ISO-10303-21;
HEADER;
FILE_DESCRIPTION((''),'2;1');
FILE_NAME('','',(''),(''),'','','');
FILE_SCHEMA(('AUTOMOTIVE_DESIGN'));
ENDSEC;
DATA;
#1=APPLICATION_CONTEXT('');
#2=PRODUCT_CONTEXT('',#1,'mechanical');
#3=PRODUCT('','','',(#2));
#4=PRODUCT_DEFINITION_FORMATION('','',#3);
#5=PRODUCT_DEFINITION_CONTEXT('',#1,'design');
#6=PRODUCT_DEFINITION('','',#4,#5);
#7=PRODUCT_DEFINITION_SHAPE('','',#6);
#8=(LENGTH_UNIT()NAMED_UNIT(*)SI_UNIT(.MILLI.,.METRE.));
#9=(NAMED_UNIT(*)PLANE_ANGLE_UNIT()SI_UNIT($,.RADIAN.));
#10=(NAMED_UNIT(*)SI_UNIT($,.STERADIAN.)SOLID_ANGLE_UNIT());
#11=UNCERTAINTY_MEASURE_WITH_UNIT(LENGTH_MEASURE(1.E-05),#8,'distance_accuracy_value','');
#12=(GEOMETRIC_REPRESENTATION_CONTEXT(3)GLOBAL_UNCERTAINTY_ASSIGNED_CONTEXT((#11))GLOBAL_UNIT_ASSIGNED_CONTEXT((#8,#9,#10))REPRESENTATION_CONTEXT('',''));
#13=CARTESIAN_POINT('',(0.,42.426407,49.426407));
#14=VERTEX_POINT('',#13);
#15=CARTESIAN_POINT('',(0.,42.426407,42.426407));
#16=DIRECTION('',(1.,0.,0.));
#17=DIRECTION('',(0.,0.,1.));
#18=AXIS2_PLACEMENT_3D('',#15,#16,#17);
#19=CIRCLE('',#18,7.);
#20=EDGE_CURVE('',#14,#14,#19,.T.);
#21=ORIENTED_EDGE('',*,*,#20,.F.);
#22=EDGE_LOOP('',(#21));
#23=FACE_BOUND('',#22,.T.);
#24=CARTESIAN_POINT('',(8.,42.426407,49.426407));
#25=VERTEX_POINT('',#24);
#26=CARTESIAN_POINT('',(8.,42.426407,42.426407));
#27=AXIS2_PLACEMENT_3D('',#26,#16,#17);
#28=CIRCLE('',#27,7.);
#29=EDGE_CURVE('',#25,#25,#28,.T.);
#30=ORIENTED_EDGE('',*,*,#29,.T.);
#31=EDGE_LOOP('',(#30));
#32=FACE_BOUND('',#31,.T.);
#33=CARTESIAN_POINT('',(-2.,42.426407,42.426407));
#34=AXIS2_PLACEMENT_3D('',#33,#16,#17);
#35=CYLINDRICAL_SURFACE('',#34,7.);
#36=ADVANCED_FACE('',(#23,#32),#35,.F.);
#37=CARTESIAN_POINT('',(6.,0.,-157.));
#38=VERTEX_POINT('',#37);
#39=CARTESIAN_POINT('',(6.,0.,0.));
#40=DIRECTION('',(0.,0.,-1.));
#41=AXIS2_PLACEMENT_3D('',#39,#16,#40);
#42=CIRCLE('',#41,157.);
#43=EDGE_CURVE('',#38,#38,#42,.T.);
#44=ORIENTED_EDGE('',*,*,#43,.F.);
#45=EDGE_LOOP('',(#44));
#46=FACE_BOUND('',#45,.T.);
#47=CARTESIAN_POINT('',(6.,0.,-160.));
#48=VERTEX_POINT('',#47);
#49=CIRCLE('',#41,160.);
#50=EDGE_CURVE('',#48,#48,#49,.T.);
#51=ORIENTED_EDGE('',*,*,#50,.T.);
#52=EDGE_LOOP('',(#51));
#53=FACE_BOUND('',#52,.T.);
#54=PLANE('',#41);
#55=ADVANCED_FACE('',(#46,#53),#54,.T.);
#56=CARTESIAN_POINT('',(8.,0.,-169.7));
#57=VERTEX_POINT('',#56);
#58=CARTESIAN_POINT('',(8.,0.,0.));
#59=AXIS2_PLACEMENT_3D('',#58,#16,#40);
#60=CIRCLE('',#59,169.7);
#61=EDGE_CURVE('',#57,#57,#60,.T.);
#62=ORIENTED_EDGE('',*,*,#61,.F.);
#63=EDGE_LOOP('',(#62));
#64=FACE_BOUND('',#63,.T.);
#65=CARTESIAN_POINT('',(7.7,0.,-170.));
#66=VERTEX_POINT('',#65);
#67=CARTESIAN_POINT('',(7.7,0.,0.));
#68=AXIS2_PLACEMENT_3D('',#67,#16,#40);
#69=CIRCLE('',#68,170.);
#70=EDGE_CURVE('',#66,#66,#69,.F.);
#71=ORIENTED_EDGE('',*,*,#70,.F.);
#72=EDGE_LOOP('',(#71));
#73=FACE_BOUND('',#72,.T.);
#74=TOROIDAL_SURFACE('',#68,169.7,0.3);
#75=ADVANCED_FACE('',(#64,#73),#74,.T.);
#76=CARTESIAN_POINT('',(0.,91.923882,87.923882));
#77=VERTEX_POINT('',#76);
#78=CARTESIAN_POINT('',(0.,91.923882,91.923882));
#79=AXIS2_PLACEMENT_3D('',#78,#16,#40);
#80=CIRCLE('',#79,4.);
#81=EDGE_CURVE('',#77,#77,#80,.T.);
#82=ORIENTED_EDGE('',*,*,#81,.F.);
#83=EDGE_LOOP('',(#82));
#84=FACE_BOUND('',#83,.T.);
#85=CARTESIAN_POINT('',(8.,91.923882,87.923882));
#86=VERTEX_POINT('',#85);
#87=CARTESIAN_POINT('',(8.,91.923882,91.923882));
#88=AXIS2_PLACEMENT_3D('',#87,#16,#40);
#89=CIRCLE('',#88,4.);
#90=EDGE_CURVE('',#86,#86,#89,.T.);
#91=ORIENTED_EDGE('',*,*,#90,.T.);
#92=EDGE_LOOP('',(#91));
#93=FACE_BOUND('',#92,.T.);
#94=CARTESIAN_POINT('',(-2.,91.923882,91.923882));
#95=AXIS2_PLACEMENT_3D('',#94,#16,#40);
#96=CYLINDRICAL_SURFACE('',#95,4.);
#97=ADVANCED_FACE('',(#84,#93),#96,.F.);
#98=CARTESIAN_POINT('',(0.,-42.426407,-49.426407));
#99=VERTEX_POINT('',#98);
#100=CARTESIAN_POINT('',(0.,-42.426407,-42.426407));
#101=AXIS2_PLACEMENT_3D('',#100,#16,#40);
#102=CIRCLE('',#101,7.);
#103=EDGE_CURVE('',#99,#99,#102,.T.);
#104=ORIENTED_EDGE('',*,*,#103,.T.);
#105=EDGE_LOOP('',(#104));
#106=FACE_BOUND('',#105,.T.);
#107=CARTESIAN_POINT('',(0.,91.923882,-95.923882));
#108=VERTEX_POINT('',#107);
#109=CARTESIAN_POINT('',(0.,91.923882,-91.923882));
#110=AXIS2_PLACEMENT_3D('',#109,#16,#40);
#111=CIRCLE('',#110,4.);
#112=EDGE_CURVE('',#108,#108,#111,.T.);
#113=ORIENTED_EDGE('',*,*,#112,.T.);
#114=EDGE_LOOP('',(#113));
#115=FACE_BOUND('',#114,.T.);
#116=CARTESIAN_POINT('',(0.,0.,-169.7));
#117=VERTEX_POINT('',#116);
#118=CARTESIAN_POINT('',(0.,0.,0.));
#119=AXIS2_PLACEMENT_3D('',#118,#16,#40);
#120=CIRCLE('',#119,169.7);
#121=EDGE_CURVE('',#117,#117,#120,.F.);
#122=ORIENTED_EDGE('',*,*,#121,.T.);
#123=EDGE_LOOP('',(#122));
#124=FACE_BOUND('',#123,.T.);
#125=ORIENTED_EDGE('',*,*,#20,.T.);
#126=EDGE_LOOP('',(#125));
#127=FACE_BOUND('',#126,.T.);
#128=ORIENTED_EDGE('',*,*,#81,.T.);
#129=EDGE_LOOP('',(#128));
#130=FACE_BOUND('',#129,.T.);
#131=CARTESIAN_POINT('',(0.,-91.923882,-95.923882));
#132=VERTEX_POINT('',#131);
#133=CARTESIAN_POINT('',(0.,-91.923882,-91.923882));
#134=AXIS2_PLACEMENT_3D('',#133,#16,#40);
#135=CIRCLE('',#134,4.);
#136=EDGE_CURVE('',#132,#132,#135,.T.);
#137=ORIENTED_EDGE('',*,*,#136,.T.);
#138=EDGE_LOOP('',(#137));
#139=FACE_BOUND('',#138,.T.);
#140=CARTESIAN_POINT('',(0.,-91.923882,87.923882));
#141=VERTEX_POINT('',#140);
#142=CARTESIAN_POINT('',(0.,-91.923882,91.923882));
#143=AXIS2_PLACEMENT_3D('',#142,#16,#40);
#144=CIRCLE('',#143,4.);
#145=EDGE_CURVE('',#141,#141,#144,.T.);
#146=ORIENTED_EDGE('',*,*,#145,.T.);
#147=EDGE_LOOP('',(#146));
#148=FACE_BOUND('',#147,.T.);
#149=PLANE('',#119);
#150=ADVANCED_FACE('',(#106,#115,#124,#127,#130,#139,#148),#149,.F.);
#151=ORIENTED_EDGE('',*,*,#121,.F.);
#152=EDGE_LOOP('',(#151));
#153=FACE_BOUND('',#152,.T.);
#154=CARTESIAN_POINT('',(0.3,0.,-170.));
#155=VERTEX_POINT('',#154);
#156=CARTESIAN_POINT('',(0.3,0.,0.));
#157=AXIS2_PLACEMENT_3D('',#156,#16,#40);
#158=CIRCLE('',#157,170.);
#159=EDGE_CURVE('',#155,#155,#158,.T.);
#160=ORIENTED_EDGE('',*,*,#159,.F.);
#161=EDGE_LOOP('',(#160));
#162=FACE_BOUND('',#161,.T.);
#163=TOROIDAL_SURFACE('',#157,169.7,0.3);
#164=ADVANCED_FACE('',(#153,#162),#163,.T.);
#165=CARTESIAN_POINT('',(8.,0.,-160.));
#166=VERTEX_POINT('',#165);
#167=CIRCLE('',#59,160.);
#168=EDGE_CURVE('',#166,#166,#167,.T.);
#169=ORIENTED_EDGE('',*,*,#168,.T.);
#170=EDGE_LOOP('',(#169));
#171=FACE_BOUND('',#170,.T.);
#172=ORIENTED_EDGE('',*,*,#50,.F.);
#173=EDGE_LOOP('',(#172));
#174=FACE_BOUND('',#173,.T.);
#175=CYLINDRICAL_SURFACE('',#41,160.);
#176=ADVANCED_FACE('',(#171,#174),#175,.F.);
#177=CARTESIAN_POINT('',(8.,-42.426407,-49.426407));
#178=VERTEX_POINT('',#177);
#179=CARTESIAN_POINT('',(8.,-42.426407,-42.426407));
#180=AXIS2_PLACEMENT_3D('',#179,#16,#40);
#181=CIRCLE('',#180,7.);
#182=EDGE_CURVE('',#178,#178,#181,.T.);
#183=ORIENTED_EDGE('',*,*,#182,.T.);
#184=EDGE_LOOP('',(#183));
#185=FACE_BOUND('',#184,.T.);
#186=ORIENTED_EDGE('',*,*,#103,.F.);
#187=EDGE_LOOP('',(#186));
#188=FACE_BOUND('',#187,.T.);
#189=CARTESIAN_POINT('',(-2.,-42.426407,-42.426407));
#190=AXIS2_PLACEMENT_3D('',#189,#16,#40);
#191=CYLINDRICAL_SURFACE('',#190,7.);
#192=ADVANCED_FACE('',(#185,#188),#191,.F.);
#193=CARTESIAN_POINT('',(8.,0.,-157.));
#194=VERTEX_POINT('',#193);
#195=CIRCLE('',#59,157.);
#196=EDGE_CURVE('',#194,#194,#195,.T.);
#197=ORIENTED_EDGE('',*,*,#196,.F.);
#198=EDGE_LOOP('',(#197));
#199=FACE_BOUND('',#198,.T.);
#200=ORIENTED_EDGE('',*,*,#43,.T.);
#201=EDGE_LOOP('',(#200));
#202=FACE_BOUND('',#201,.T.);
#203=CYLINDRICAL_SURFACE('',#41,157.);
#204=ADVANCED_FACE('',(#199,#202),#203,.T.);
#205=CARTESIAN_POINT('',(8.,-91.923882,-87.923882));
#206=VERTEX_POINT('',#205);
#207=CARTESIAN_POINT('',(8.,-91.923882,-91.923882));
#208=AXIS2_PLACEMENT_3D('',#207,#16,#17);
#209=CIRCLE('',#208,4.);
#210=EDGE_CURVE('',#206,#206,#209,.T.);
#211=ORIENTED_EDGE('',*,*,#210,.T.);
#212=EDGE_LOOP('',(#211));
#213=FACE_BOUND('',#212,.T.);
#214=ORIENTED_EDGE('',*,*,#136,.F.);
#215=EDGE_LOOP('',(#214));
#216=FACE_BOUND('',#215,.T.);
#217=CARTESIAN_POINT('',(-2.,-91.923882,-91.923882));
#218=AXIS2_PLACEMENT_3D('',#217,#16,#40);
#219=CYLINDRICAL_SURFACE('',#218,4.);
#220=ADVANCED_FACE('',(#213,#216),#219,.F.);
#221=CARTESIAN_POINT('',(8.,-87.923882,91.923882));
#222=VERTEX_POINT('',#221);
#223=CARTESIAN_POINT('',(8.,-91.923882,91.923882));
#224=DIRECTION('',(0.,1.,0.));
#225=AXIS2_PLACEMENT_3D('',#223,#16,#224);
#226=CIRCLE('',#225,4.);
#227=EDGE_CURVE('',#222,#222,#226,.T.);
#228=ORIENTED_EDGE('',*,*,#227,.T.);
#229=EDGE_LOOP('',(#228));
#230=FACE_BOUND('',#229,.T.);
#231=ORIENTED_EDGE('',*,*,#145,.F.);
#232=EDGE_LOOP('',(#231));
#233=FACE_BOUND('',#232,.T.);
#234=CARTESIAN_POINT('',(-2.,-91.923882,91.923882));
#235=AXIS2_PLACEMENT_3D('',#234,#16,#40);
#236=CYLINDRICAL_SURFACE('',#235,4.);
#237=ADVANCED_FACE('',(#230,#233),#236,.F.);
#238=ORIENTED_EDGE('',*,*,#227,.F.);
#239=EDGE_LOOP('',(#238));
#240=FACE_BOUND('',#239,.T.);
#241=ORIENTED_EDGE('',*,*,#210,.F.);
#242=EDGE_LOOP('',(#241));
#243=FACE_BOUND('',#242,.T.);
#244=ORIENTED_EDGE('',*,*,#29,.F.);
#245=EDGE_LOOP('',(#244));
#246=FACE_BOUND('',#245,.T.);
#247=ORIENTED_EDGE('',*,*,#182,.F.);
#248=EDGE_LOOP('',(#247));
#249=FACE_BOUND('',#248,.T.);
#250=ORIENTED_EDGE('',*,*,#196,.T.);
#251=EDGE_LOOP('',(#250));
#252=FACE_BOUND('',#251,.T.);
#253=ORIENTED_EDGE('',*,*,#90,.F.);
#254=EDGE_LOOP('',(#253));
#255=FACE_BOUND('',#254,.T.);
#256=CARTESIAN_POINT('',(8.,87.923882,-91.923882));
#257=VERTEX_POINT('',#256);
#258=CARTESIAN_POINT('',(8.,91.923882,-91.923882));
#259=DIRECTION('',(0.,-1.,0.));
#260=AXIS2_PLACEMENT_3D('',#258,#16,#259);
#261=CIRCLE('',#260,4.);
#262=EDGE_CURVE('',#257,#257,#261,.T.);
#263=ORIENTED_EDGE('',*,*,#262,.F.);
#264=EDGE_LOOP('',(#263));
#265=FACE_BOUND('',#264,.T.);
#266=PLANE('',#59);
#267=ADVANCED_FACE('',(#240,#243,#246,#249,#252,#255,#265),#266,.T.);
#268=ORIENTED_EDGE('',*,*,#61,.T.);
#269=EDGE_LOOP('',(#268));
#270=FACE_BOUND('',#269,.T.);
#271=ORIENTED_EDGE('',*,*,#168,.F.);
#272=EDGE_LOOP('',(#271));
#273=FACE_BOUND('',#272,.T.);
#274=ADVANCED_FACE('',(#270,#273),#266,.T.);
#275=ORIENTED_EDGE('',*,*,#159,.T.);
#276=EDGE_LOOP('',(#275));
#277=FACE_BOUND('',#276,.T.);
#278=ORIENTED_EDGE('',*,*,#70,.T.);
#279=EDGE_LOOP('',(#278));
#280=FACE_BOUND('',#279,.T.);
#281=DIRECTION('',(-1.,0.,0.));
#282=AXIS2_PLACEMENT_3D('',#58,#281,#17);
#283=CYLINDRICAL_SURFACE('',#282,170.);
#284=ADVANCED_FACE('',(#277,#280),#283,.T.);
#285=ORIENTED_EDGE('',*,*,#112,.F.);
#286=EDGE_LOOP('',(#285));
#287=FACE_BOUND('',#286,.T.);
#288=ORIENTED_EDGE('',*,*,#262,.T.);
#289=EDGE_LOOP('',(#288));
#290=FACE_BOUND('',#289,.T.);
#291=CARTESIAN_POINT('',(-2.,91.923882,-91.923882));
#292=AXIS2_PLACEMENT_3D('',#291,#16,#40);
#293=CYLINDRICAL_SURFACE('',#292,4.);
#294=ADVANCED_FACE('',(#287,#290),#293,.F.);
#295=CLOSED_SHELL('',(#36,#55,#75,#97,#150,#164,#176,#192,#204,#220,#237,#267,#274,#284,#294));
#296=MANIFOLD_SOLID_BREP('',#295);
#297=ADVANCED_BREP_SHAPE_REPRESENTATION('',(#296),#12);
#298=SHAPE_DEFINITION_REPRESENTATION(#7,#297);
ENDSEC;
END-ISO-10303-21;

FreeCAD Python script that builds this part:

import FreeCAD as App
import Part
import Sketcher
Q = App.Units.Quantity


def edges_at(feature, points):
    """Names of the edges that pass closest to the given points."""
    edges = feature.Shape.Edges
    near = lambda p: min(range(len(edges)), key=lambda i: edges[i].distToShape(Part.Vertex(*p))[0])
    return sorted({f"Edge{near(p) + 1}" for p in points})

doc = App.newDocument("Part")
body = doc.addObject("PartDesign::Body", "Body")

sketch1 = body.newObject("Sketcher::SketchObject", "Sketch")
sketch1.AttachmentSupport = (doc.getObject("YZ_Plane"), [""])
sketch1.MapMode = "FlatFace"
sketch1.addGeometry(Part.Circle(App.Vector(0, 0, 0), App.Vector(0, 0, 1), 170), False)
sketch1.addConstraint([
    Sketcher.Constraint("Coincident", 0, 3, -1, 1),
    Sketcher.Constraint("Diameter", 0, Q("340 mm")),
])
pad1 = body.newObject("PartDesign::Pad", "Pad")
pad1.Profile = sketch1
pad1.Length = 8

sketch2 = body.newObject("Sketcher::SketchObject", "Sketch001")
sketch2.AttachmentSupport = (doc.getObject("YZ_Plane"), [""])
sketch2.MapMode = "FlatFace"
sketch2.AttachmentOffset = App.Placement(App.Vector(0, 0, 8), App.Rotation())
sketch2.addGeometry(Part.Circle(App.Vector(91.923882, 91.923882, 0), App.Vector(0, 0, 1), 4), False)
sketch2.addConstraint([
    Sketcher.Constraint("Diameter", 0, Q("8 mm")),
    Sketcher.Constraint("DistanceX", -1, 1, 0, 3, Q("91.923882 mm")),
    Sketcher.Constraint("DistanceY", -1, 1, 0, 3, Q("91.923882 mm")),
])
pocket1 = body.newObject("PartDesign::Pocket", "Pocket")
pocket1.Profile = sketch2
pocket1.Length = 10
doc.recompute()

polarpattern = body.newObject("PartDesign::PolarPattern", "PolarPattern")
polarpattern.Originals = [pocket1]
polarpattern.Axis = (doc.getObject("X_Axis"), [""])
polarpattern.Angle = 360
polarpattern.Occurrences = 4
body.Tip = polarpattern

sketch3 = body.newObject("Sketcher::SketchObject", "Sketch002")
sketch3.AttachmentSupport = (doc.getObject("YZ_Plane"), [""])
sketch3.MapMode = "FlatFace"
sketch3.AttachmentOffset = App.Placement(App.Vector(0, 0, 8), App.Rotation())
sketch3.addGeometry([
    Part.Circle(App.Vector(0, 0, 0), App.Vector(0, 0, 1), 160),
    Part.Circle(App.Vector(0, 0, 0), App.Vector(0, 0, 1), 157),
], False)
sketch3.addConstraint([
    Sketcher.Constraint("Coincident", 0, 3, -1, 1),
    Sketcher.Constraint("Coincident", 1, 3, -1, 1),
    Sketcher.Constraint("Diameter", 0, Q("320 mm")),
    Sketcher.Constraint("Diameter", 1, Q("314 mm")),
])
pocket2 = body.newObject("PartDesign::Pocket", "Pocket001")
pocket2.Profile = sketch3
pocket2.Length = 2
doc.recompute()

fillet = body.newObject("PartDesign::Fillet", "Fillet")
fillet.Base = (pocket2, edges_at(pocket2, [(0, 0, 170), (8, 0, 170)]))
fillet.Radius = 0.3

sketch4 = body.newObject("Sketcher::SketchObject", "Sketch003")
sketch4.AttachmentSupport = (doc.getObject("YZ_Plane"), [""])
sketch4.MapMode = "FlatFace"
sketch4.AttachmentOffset = App.Placement(App.Vector(0, 0, 8), App.Rotation())
sketch4.addGeometry(Part.Circle(App.Vector(-42.426407, -42.426407, 0), App.Vector(0, 0, 1), 7), False)
sketch4.addConstraint([
    Sketcher.Constraint("Diameter", 0, Q("14 mm")),
    Sketcher.Constraint("DistanceX", 0, 3, -1, 1, Q("42.426407 mm")),
    Sketcher.Constraint("DistanceY", 0, 3, -1, 1, Q("42.426407 mm")),
])
pocket3 = body.newObject("PartDesign::Pocket", "Pocket002")
pocket3.Profile = sketch4
pocket3.Length = 10
doc.recompute()

polarpattern2 = body.newObject("PartDesign::PolarPattern", "PolarPattern001")
polarpattern2.Originals = [pocket3]
polarpattern2.Axis = (doc.getObject("X_Axis"), [""])
polarpattern2.Angle = 360
polarpattern2.Occurrences = 2
body.Tip = polarpattern2

doc.recompute()
